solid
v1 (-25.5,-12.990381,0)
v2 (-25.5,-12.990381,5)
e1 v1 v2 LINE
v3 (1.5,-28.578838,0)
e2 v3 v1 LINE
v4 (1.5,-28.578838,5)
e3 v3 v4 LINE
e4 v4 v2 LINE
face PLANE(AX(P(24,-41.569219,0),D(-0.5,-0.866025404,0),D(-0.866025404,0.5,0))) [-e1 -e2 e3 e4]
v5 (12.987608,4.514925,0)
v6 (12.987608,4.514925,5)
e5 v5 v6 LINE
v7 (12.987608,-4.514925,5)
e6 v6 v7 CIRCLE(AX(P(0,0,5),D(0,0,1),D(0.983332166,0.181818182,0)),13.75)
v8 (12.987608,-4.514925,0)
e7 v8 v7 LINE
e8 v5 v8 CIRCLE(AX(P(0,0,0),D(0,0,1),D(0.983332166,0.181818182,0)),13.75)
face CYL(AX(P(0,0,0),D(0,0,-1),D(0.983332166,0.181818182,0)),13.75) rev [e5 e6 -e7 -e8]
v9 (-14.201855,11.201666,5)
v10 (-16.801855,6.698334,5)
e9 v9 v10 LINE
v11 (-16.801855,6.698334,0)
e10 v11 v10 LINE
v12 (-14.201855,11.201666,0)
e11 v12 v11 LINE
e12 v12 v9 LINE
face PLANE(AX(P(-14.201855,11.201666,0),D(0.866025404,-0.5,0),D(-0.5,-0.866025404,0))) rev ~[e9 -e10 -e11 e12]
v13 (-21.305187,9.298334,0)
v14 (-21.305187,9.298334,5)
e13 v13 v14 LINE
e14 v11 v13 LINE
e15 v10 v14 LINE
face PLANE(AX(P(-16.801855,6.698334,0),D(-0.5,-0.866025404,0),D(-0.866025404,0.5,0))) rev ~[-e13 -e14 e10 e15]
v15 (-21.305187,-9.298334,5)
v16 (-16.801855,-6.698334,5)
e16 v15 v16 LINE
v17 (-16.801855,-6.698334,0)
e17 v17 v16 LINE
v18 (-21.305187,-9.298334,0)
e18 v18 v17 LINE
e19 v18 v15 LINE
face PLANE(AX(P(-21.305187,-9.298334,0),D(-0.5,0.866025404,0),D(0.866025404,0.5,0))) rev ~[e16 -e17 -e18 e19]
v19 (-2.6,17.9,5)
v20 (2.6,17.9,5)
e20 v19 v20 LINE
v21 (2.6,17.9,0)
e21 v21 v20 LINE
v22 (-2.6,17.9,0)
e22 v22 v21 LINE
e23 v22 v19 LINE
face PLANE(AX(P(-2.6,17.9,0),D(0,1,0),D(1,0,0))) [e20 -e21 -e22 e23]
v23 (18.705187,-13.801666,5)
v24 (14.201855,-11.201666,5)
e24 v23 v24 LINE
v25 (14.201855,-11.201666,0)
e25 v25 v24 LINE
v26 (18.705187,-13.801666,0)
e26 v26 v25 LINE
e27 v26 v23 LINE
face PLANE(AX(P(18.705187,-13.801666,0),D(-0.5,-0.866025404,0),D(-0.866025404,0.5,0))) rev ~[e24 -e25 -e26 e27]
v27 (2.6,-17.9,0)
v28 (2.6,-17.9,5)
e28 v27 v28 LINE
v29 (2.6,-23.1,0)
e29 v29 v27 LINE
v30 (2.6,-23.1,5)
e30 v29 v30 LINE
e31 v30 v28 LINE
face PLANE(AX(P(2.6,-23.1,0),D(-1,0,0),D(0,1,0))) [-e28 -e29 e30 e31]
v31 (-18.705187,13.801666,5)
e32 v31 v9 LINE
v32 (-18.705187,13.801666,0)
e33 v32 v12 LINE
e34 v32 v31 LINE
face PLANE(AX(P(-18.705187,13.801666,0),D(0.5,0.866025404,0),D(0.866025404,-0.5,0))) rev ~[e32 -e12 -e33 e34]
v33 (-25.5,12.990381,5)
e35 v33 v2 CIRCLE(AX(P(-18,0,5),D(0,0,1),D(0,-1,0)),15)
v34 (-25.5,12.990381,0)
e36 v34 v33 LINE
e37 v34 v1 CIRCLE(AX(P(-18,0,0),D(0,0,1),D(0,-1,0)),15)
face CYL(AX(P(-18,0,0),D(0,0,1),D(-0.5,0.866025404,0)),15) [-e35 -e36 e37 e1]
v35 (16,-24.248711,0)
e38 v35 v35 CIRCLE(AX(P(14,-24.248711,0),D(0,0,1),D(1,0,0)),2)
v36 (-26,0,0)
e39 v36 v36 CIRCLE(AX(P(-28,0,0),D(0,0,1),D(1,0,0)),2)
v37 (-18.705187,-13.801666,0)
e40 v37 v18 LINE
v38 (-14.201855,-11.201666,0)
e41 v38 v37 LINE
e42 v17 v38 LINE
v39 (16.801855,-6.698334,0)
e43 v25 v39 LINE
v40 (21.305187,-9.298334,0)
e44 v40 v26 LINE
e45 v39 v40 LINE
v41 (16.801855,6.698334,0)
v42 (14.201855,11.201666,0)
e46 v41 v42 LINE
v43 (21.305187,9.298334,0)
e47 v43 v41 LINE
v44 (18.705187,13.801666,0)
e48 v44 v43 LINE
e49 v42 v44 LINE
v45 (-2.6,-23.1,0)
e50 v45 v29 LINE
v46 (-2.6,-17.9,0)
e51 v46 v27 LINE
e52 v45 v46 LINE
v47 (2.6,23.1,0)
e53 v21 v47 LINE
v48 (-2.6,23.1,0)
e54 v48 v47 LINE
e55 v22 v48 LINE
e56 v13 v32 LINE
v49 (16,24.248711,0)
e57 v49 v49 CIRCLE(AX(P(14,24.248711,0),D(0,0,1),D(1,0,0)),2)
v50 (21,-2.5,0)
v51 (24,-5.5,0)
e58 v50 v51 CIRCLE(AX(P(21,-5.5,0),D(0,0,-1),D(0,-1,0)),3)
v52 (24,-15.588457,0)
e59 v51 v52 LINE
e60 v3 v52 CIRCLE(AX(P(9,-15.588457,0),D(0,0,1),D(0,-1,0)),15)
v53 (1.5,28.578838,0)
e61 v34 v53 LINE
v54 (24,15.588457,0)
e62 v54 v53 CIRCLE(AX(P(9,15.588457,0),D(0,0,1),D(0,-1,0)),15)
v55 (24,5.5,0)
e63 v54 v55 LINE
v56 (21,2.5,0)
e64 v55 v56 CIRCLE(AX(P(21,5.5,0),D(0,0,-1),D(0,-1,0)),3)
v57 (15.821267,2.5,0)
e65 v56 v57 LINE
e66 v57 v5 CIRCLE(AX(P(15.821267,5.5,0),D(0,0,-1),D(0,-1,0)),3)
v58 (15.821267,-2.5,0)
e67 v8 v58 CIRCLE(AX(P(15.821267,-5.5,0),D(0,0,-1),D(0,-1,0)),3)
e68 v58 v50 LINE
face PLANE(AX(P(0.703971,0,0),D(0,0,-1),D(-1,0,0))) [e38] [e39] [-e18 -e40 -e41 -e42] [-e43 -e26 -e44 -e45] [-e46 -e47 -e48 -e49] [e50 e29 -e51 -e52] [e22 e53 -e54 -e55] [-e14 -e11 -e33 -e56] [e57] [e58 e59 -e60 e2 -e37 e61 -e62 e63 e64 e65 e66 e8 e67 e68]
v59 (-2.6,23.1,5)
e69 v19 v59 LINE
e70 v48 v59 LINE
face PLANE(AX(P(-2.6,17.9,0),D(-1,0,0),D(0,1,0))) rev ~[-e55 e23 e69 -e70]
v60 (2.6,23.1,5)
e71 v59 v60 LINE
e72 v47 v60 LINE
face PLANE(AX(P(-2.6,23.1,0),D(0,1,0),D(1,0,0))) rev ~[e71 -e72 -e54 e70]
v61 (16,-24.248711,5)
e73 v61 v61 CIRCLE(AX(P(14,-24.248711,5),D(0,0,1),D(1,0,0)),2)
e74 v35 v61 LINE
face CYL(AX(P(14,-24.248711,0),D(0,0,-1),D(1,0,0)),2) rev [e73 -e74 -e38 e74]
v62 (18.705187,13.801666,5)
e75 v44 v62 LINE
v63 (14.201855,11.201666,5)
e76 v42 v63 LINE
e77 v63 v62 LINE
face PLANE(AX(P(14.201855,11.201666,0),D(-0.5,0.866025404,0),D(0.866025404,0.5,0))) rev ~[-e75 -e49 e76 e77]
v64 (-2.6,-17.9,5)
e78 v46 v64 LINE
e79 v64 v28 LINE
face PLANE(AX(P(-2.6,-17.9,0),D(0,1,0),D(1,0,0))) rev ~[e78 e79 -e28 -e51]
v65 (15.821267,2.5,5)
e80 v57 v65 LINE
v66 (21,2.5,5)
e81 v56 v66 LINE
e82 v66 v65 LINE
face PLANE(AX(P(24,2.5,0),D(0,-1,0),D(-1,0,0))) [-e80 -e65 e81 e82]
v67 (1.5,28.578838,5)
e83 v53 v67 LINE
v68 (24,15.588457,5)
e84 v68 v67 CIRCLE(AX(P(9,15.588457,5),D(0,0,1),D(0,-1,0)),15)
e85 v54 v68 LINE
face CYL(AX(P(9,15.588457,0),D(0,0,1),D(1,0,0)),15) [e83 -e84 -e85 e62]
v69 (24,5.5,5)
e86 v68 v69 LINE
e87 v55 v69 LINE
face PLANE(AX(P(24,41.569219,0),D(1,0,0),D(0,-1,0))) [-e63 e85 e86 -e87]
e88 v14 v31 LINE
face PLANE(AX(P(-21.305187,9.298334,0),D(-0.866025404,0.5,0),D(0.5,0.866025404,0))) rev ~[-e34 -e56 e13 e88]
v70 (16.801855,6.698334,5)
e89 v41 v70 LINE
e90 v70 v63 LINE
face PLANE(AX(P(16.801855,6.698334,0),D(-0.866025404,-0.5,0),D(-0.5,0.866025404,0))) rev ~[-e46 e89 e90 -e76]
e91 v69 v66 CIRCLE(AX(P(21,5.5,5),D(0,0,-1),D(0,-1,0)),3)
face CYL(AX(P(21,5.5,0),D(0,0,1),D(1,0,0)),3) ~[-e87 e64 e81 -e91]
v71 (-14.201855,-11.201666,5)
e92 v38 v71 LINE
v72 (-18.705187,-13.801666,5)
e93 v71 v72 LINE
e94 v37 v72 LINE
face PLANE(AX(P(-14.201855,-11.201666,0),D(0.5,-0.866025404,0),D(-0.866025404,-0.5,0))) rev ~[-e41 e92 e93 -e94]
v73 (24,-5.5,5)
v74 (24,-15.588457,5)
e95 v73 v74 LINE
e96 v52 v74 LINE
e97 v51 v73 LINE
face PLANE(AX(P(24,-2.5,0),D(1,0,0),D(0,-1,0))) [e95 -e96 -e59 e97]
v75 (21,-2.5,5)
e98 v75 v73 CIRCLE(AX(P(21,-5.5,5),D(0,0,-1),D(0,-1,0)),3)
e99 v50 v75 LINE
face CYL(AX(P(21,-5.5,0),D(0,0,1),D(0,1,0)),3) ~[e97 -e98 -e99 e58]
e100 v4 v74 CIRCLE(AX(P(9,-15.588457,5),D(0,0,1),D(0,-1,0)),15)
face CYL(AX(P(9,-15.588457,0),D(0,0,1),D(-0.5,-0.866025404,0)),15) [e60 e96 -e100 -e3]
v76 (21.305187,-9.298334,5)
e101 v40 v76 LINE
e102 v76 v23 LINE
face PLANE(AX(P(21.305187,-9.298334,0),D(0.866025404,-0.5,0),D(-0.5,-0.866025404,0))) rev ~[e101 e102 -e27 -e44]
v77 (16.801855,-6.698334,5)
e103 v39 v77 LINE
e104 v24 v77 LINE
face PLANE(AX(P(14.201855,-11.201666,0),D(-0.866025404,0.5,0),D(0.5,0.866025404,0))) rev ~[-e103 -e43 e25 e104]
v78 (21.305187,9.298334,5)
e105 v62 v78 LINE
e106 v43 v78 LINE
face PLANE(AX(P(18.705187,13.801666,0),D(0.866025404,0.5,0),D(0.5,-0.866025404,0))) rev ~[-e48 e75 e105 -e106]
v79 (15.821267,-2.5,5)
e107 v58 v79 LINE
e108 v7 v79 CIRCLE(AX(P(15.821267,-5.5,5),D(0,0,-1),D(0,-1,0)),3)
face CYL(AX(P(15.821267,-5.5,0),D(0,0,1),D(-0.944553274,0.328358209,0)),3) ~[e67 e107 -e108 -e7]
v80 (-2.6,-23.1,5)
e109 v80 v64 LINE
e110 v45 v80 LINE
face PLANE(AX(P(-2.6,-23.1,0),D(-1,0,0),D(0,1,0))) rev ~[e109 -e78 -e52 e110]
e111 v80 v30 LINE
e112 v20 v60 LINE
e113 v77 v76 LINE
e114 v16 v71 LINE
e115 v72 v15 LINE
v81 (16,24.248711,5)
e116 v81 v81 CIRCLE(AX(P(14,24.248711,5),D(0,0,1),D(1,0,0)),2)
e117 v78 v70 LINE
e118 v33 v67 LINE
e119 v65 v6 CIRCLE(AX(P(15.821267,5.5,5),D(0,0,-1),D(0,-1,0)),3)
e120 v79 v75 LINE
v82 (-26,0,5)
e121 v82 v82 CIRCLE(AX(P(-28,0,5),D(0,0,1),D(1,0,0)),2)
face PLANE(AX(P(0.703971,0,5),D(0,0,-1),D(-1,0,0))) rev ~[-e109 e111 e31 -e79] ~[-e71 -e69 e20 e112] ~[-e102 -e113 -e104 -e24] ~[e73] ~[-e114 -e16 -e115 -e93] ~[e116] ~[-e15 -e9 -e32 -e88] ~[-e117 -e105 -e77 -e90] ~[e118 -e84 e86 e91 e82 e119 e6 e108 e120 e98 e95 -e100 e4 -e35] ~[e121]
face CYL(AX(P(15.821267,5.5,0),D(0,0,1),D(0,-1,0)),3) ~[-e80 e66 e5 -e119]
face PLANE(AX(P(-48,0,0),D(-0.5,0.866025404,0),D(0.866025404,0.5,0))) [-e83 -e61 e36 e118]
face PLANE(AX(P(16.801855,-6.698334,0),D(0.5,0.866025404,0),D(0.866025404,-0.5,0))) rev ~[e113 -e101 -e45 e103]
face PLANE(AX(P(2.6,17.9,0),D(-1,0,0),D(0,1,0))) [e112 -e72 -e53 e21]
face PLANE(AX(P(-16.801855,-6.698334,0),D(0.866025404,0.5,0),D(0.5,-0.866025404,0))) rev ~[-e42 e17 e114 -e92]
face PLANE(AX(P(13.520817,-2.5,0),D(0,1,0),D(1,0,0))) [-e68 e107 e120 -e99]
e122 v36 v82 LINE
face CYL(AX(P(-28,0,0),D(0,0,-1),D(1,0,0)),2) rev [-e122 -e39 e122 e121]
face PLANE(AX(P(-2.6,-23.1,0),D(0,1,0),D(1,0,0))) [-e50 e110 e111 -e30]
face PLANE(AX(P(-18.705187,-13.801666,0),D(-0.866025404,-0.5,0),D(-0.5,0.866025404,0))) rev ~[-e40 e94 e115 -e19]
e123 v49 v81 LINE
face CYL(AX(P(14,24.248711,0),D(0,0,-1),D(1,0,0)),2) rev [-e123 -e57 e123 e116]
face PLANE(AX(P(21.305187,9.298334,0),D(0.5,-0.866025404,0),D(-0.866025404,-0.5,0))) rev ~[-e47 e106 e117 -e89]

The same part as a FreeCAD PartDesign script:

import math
import FreeCAD as App
import Part
import Sketcher
from FreeCAD import Vector
Q = App.Units.Quantity


def edges_at(feature, points):
    """Names of the edges that pass closest to the given points."""
    edges = feature.Shape.Edges
    near = lambda p: min(range(len(edges)), key=lambda i: edges[i].distToShape(Part.Vertex(*p))[0])
    return sorted({f"Edge{near(p) + 1}" for p in points})


def add_polygon(sketch, points):
    """Adds a closed chain of lines whose ends are joined by coincident constraints."""
    first, n = sketch.GeometryCount, len(points)
    for a, b in zip(points, points[1:] + points[:1]):
        sketch.addGeometry(Part.LineSegment(App.Vector(*a, 0), App.Vector(*b, 0)), False)
    for i in range(n):
        sketch.addConstraint(Sketcher.Constraint("Coincident", first + i, 2, first + (i + 1) % n, 1))

doc = App.newDocument("Part")
body = doc.addObject("PartDesign::Body", "Body")

sketch1 = doc.addObject("Sketcher::SketchObject", "Sketch")
body.addObject(sketch1)
sketch1.AttachmentSupport = (doc.XY_Plane, [""])
sketch1.MapMode = "FlatFace"
sketch1.addGeometry(Part.LineSegment(Vector(13.520817, 2.5, 0), Vector(24, 2.5, 0)), False)
sketch1.addGeometry(Part.LineSegment(Vector(24, 2.5, 0), Vector(24, 41.569219, 0)), False)
sketch1.addGeometry(Part.LineSegment(Vector(24, 41.569219, 0), Vector(-48, 0, 0)), False)
sketch1.addGeometry(Part.LineSegment(Vector(-48, 0, 0), Vector(24, -41.569219, 0)), False)
sketch1.addGeometry(Part.LineSegment(Vector(24, -41.569219, 0), Vector(24, -2.5, 0)), False)
sketch1.addGeometry(Part.LineSegment(Vector(24, -2.5, 0), Vector(13.520817, -2.5, 0)), False)
sketch1.addGeometry(Part.ArcOfCircle(Part.Circle(Vector(0, 0, 0), Vector(0, 0, 1), 13.75), math.radians(10.475682), math.radians(349.524318)), False)
sketch1.addGeometry(Part.Circle(Vector(14, -24.248711, 0), Vector(0, 0, 1), 2), False)
add_polygon(sketch1, [(-2.6, -23.1), (-2.6, -17.9), (2.6, -17.9), (2.6, -23.1)])
add_polygon(sketch1, [(18.705187, -13.801666), (14.201855, -11.201666), (16.801855, -6.698334), (21.305187, -9.298334)])
add_polygon(sketch1, [(-21.305187, -9.298334), (-16.801855, -6.698334), (-14.201855, -11.201666), (-18.705187, -13.801666)])
add_polygon(sketch1, [(21.305187, 9.298334), (16.801855, 6.698334), (14.201855, 11.201666), (18.705187, 13.801666)])
sketch1.addGeometry(Part.Circle(Vector(14, 24.248711, 0), Vector(0, 0, 1), 2), False)
add_polygon(sketch1, [(-2.6, 17.9), (-2.6, 23.1), (2.6, 23.1), (2.6, 17.9)])
sketch1.addGeometry(Part.Circle(Vector(-28, 0, 0), Vector(0, 0, 1), 2), False)
add_polygon(sketch1, [(-18.705187, 13.801666), (-14.201855, 11.201666), (-16.801855, 6.698334), (-21.305187, 9.298334)])
sketch1.addConstraint(Sketcher.Constraint("Coincident", 0, 2, 1, 1))
sketch1.addConstraint(Sketcher.Constraint("Coincident", 1, 2, 2, 1))
sketch1.addConstraint(Sketcher.Constraint("Coincident", 2, 2, 3, 1))
sketch1.addConstraint(Sketcher.Constraint("Coincident", 3, 2, 4, 1))
sketch1.addConstraint(Sketcher.Constraint("Coincident", 4, 2, 5, 1))
sketch1.addConstraint(Sketcher.Constraint("Coincident", 5, 2, 6, 2))
sketch1.addConstraint(Sketcher.Constraint("Coincident", 6, 1, 0, 1))
sketch1.addConstraint(Sketcher.Constraint("Horizontal", 0))
sketch1.addConstraint(Sketcher.Constraint("Vertical", 1))
sketch1.addConstraint(Sketcher.Constraint("Vertical", 4))
sketch1.addConstraint(Sketcher.Constraint("Horizontal", 5))
sketch1.addConstraint(Sketcher.Constraint("Vertical", 8))
sketch1.addConstraint(Sketcher.Constraint("Horizontal", 9))
sketch1.addConstraint(Sketcher.Constraint("Vertical", 10))
sketch1.addConstraint(Sketcher.Constraint("Horizontal", 11))
sketch1.addConstraint(Sketcher.Constraint("Vertical", 25))
sketch1.addConstraint(Sketcher.Constraint("Horizontal", 26))
sketch1.addConstraint(Sketcher.Constraint("Vertical", 27))
sketch1.addConstraint(Sketcher.Constraint("Horizontal", 28))
sketch1.addConstraint(Sketcher.Constraint("Coincident", 6, 3, -1, 1))
sketch1.addConstraint(Sketcher.Constraint("Equal", 7, 24))
sketch1.addConstraint(Sketcher.Constraint("Equal", 24, 29))
sketch1.addConstraint(Sketcher.Constraint("Symmetric", 16, 2, 20, 2, -1, 1))
sketch1.addConstraint(Sketcher.Constraint("Symmetric", 17, 2, 21, 2, -1, 1))
sketch1.addConstraint(Sketcher.Constraint("Symmetric", 18, 2, 22, 2, -1, 1))
sketch1.addConstraint(Sketcher.Constraint("Symmetric", 19, 2, 23, 2, -1, 1))
sketch1.addConstraint(Sketcher.Constraint("Symmetric", 10, 2, 25, 2, -1, 1))
sketch1.addConstraint(Sketcher.Constraint("Symmetric", 8, 2, 27, 2, -1, 1))
sketch1.addConstraint(Sketcher.Constraint("Symmetric", 12, 2, 30, 2, -1, 1))
sketch1.addConstraint(Sketcher.Constraint("Symmetric", 13, 2, 31, 2, -1, 1))
sketch1.addConstraint(Sketcher.Constraint("Symmetric", 14, 2, 32, 2, -1, 1))
sketch1.addConstraint(Sketcher.Constraint("Symmetric", 15, 2, 33, 2, -1, 1))
sketch1.addConstraint(Sketcher.Constraint("Symmetric", 13, 2, 16, 2, -2))
sketch1.addConstraint(Sketcher.Constraint("Symmetric", 12, 2, 17, 2, -2))
sketch1.addConstraint(Sketcher.Constraint("Symmetric", 15, 2, 18, 2, -2))
sketch1.addConstraint(Sketcher.Constraint("Symmetric", 14, 2, 19, 2, -2))
sketch1.addConstraint(Sketcher.Constraint("Symmetric", 7, 3, 24, 3, -1))
sketch1.addConstraint(Sketcher.Constraint("Symmetric", 1, 2, 3, 2, -1))
sketch1.addConstraint(Sketcher.Constraint("PointOnObject", 29, 3, -1))
sketch1.addConstraint(Sketcher.Constraint("PointOnObject", 2, 2, -1))
sketch1.addConstraint(Sketcher.Constraint("Parallel", 3, 12))
sketch1.addConstraint(Sketcher.Constraint("Perpendicular", 12, 13))
sketch1.addConstraint(Sketcher.Constraint("Perpendicular", 13, 14))
sketch1.addConstraint(Sketcher.Constraint("Perpendicular", 14, 15))
sketch1.addConstraint(Sketcher.Constraint("Vertical", 5, 2, 6, 1))
sketch1.addConstraint(Sketcher.Constraint("Vertical", 11, 2, 25, 2))
sketch1.addConstraint(Sketcher.Constraint("Equal", 28, 8))
sketch1.addConstraint(Sketcher.Constraint("Equal", 12, 13))
sketch1.addConstraint(Sketcher.Constraint("Diameter", 7, 4.0))
sketch1.addConstraint(Sketcher.Constraint("Angle", 2, Q("-150 deg")))
sketch1.addConstraint(Sketcher.Constraint("Radius", 6, 13.75))
sketch1.addConstraint(Sketcher.Constraint("DistanceX", 9, 1, 9, 2, 5.2))
sketch1.addConstraint(Sketcher.Constraint("DistanceX", -1, 1, 7, 3, 14.0))
sketch1.addConstraint(Sketcher.Constraint("DistanceX", 29, 3, -1, 1, 28.0))
sketch1.addConstraint(Sketcher.Constraint("DistanceX", -1, 1, 0, 2, 24.0))
sketch1.addConstraint(Sketcher.Constraint("DistanceX", 2, 2, -1, 1, 48.0))
sketch1.addConstraint(Sketcher.Constraint("DistanceY", 4, 2, 0, 2, 5.0))
sketch1.addConstraint(Sketcher.Constraint("Distance", 12, 5.2))
sketch1.addConstraint(Sketcher.Constraint("DistanceY", 8, 2, -1, 1, 17.9))
sketch1.addConstraint(Sketcher.Constraint("DistanceY", 16, 2, 30, 2, 17.9))
sketch1.addConstraint(Sketcher.Constraint("DistanceY", 7, 3, -1, 1, 24.248711))
sketch1.addConstraint(Sketcher.Constraint("DistanceX", 5, 2, 14, 2, 7.78437))
pad1 = doc.addObject("PartDesign::Pad", "Pad")
body.addObject(pad1)
pad1.Profile = sketch1
pad1.Length = 5
doc.recompute()

fillet = doc.addObject("PartDesign::Fillet", "Fillet")
body.addObject(fillet)
fillet.Base = (pad1, edges_at(pad1, [(24, -41.569, 2.5), (-48, 0, 2.5), (24, 41.569, 2.5)]))
fillet.Radius = 15
doc.recompute()

fillet2 = doc.addObject("PartDesign::Fillet", "Fillet001")
body.addObject(fillet2)
fillet2.Base = (fillet, edges_at(fillet, [
    (24, 2.5, 2.5),
    (13.521, 2.5, 2.5),
    (13.521, -2.5, 2.5),
    (24, -2.5, 2.5),
]))
fillet2.Radius = 3

doc.recompute()
